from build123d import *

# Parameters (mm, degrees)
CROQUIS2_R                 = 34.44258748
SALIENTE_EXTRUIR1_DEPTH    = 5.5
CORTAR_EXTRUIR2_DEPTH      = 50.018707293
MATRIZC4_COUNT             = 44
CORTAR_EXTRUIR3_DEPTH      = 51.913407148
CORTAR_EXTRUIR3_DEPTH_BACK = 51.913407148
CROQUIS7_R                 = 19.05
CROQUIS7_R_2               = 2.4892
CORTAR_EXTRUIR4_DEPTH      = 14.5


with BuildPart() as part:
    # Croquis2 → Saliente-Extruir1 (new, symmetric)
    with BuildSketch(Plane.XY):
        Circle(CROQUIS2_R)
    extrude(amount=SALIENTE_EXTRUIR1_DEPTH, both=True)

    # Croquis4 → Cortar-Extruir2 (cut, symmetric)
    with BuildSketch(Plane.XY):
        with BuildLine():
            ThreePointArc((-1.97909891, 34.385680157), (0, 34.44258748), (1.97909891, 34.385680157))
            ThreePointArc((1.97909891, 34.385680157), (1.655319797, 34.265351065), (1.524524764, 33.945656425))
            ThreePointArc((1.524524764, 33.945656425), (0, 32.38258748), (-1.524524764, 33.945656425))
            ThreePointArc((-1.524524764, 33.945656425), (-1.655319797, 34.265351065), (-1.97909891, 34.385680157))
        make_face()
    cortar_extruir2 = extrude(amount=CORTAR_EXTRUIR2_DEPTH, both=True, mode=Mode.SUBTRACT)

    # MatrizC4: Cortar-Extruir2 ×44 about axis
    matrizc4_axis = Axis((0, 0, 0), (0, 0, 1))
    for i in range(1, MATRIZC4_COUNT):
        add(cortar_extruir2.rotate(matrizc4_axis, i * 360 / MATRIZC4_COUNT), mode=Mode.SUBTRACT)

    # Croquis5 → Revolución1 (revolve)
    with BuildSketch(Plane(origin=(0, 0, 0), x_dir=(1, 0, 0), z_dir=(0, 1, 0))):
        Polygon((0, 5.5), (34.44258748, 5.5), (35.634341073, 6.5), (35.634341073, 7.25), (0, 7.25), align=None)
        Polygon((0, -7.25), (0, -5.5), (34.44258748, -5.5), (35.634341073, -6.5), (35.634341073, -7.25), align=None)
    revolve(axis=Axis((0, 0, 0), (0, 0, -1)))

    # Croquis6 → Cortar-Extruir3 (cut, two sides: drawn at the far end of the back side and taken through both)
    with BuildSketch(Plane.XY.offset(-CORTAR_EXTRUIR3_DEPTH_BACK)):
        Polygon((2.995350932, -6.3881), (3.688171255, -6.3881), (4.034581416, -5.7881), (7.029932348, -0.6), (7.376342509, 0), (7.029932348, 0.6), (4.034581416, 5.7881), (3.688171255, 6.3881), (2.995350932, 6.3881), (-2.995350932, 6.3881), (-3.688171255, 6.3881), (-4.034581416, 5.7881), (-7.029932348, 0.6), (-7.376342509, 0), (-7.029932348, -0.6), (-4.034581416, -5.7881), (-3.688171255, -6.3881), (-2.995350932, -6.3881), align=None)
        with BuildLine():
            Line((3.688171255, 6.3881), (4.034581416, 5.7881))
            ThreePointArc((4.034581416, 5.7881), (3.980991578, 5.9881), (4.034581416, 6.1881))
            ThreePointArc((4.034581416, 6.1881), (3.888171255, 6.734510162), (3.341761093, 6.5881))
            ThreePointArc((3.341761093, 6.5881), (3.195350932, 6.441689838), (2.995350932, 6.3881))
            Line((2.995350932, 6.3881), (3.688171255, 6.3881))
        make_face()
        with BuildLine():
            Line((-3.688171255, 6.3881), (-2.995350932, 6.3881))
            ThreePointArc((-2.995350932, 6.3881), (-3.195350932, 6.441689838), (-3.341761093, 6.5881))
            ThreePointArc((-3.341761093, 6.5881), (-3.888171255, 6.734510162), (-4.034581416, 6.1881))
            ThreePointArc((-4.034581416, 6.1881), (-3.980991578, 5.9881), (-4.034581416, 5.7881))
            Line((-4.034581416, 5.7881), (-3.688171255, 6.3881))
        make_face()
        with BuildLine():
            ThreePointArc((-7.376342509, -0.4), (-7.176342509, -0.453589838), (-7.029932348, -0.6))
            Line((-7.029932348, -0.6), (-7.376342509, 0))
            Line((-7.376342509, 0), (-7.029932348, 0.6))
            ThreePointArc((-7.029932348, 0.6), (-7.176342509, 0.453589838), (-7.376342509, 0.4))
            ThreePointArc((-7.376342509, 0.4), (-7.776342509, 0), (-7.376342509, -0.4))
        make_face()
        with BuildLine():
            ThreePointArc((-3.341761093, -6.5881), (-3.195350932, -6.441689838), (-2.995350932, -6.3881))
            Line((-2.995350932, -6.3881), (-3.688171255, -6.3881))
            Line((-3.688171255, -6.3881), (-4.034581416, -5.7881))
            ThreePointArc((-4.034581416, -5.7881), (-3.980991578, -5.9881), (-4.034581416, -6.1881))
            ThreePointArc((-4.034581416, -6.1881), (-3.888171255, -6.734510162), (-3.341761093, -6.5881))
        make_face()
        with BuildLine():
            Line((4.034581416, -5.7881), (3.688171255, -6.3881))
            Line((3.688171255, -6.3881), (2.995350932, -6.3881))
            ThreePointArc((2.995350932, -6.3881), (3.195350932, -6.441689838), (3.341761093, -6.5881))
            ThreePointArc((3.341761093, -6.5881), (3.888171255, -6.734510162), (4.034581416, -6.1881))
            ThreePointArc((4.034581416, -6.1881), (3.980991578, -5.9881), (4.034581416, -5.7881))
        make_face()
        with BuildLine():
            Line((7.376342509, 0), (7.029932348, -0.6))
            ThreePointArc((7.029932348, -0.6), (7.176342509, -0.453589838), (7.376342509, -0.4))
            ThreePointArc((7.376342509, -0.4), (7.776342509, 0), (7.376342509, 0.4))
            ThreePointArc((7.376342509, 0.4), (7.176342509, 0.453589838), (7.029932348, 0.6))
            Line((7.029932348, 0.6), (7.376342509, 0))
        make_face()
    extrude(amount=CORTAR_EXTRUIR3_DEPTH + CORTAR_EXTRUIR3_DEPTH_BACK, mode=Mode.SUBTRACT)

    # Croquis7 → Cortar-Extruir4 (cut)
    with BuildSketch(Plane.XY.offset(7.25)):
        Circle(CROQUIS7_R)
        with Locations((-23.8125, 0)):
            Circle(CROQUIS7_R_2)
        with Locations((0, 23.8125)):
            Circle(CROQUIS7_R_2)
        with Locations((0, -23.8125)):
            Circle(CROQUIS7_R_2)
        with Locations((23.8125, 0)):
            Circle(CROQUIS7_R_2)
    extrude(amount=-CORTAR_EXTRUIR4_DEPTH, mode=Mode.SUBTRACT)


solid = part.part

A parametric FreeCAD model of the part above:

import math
import FreeCAD as App
import Part
import Sketcher
Q = App.Units.Quantity

doc = App.newDocument("Part")
body = doc.addObject("PartDesign::Body", "Body")

sketch1 = body.newObject("Sketcher::SketchObject", "Sketch")
sketch1.AttachmentSupport = (doc.getObject("XY_Plane"), [""])
sketch1.MapMode = "FlatFace"
sketch1.addGeometry(Part.Circle(App.Vector(0, 0, 0), App.Vector(0, 0, 1), 34), False)
sketch1.addConstraint([
    Sketcher.Constraint("Coincident", 0, 3, -1, 1),
    Sketcher.Constraint("Diameter", 0, Q("68.885175 mm")),
])
pad1 = body.newObject("PartDesign::Pad", "Pad")
pad1.Profile = sketch1
pad1.Length = 11
pad1.Midplane = True

sketch2 = body.newObject("Sketcher::SketchObject", "Sketch001")
sketch2.AttachmentSupport = (doc.getObject("XY_Plane"), [""])
sketch2.MapMode = "FlatFace"
sketch2.addGeometry([
    Part.ArcOfCircle(Part.Circle(App.Vector(0, 0, 0), App.Vector(0, 0, 1), 34.44), math.radians(86.71), math.radians(93.29)),
    Part.ArcOfCircle(Part.Circle(App.Vector(-1.95, 33.96, 0), App.Vector(0, 0, 1), 0.43), math.radians(-1), math.radians(93)),
    Part.ArcOfCircle(Part.Circle(App.Vector(0, 33.91, 0), App.Vector(0, 0, 1), 1.52), math.radians(179), math.radians(361)),
    Part.ArcOfCircle(Part.Circle(App.Vector(1.95, 33.96, 0), App.Vector(0, 0, 1), 0.43), math.radians(87), math.radians(181)),
], False)
sketch2.addConstraint([
    Sketcher.Constraint("Tangent", 0, 2, 1, 2),
    Sketcher.Constraint("Tangent", 1, 1, 2, 1),
    Sketcher.Constraint("Tangent", 2, 2, 3, 2),
    Sketcher.Constraint("Tangent", 3, 1, 0, 1),
    Sketcher.Constraint("Coincident", 0, 3, -1, 1),
    Sketcher.Constraint("Equal", 1, 3),
    Sketcher.Constraint("PointOnObject", 2, 3, -2),
    Sketcher.Constraint("Radius", 1, Q("0.43 mm")),
    Sketcher.Constraint("Radius", 2, Q("1.525 mm")),
    Sketcher.Constraint("Radius", 0, Q("34.442588 mm")),
    Sketcher.Constraint("DistanceX", -1, 1, 3, 1, Q("1.979099 mm")),
])
pocket1 = body.newObject("PartDesign::Pocket", "Pocket")
pocket1.Profile = sketch2
pocket1.Length = 100.037415
pocket1.Midplane = True
doc.recompute()

polarpattern = body.newObject("PartDesign::PolarPattern", "PolarPattern")
polarpattern.Originals = [pocket1]
polarpattern.Axis = (doc.getObject("Z_Axis"), [""])
polarpattern.Angle = 360
polarpattern.Occurrences = 44
body.Tip = polarpattern

sketch3 = body.newObject("Sketcher::SketchObject", "Sketch002")
sketch3.AttachmentSupport = (doc.getObject("XZ_Plane"), [""])
sketch3.MapMode = "FlatFace"
sketch3.addGeometry([
    Part.LineSegment(App.Vector(0, -5.5, 0), App.Vector(34.4, -5.5, 0)),
    Part.LineSegment(App.Vector(34.4, -5.5, 0), App.Vector(35.6, -6.5, 0)),
    Part.LineSegment(App.Vector(35.6, -6.5, 0), App.Vector(35.6, -7.2, 0)),
    Part.LineSegment(App.Vector(35.6, -7.2, 0), App.Vector(0, -7.2, 0)),
    Part.LineSegment(App.Vector(0, -7.2, 0), App.Vector(0, -5.5, 0)),
    Part.LineSegment(App.Vector(0, 5.5, 0), App.Vector(0, 7.2, 0)),
    Part.LineSegment(App.Vector(0, 7.2, 0), App.Vector(35.6, 7.2, 0)),
    Part.LineSegment(App.Vector(35.6, 7.2, 0), App.Vector(35.6, 6.5, 0)),
    Part.LineSegment(App.Vector(35.6, 6.5, 0), App.Vector(34.4, 5.5, 0)),
    Part.LineSegment(App.Vector(34.4, 5.5, 0), App.Vector(0, 5.5, 0)),
], False)
sketch3.addConstraint([
    Sketcher.Constraint("Coincident", 0, 2, 1, 1),
    Sketcher.Constraint("Coincident", 1, 2, 2, 1),
    Sketcher.Constraint("Coincident", 2, 2, 3, 1),
    Sketcher.Constraint("Coincident", 3, 2, 4, 1),
    Sketcher.Constraint("Coincident", 4, 2, 0, 1),
    Sketcher.Constraint("Coincident", 5, 2, 6, 1),
    Sketcher.Constraint("Coincident", 6, 2, 7, 1),
    Sketcher.Constraint("Coincident", 7, 2, 8, 1),
    Sketcher.Constraint("Coincident", 8, 2, 9, 1),
    Sketcher.Constraint("Coincident", 9, 2, 5, 1),
    Sketcher.Constraint("Horizontal", 0),
    Sketcher.Constraint("Vertical", 2),
    Sketcher.Constraint("Horizontal", 3),
    Sketcher.Constraint("Vertical", 4),
    Sketcher.Constraint("Vertical", 5),
    Sketcher.Constraint("Horizontal", 6),
    Sketcher.Constraint("Vertical", 7),
    Sketcher.Constraint("Horizontal", 9),
    Sketcher.Constraint("Symmetric", 3, 2, 5, 2, -1, 1),
    Sketcher.Constraint("Symmetric", 1, 2, 7, 2, -1),
    Sketcher.Constraint("Symmetric", 0, 2, 8, 2, -1),
    Sketcher.Constraint("PointOnObject", 3, 2, -2),
    Sketcher.Constraint("Angle", 1, Q("-40 deg")),
    Sketcher.Constraint("DistanceY", 1, 2, 0, 2, Q("1 mm")),
    Sketcher.Constraint("DistanceY", 0, 2, 7, 2, Q("12 mm")),
    Sketcher.Constraint("DistanceY", 2, 2, 2, 1, Q("0.75 mm")),
    Sketcher.Constraint("DistanceX", 3, 2, 3, 1, Q("35.634341 mm")),
])
revolution = body.newObject("PartDesign::Revolution", "Revolution")
revolution.Profile = sketch3
revolution.ReferenceAxis = (sketch3, ["V_Axis"])
revolution.Angle = 360

sketch4 = body.newObject("Sketcher::SketchObject", "Sketch003")
sketch4.AttachmentSupport = (doc.getObject("XY_Plane"), [""])
sketch4.MapMode = "FlatFace"
sketch4.addGeometry([
    Part.LineSegment(App.Vector(4.03, -5.79, 0), App.Vector(7.03, -0.6, 0)),
    Part.ArcOfCircle(Part.Circle(App.Vector(7.38, -0.8, 0), App.Vector(0, 0, 1), 0.4), math.radians(90), math.radians(150)),
    Part.ArcOfCircle(Part.Circle(App.Vector(7.38, 0, 0), App.Vector(0, 0, 1), 0.4), math.radians(-90), math.radians(90)),
    Part.ArcOfCircle(Part.Circle(App.Vector(7.38, 0.8, 0), App.Vector(0, 0, 1), 0.4), math.radians(-150), math.radians(-90)),
    Part.LineSegment(App.Vector(7.03, 0.6, 0), App.Vector(4.03, 5.79, 0)),
    Part.ArcOfCircle(Part.Circle(App.Vector(4.38, 5.99, 0), App.Vector(0, 0, 1), 0.4), math.radians(150), math.radians(210)),
    Part.ArcOfCircle(Part.Circle(App.Vector(3.69, 6.39, 0), App.Vector(0, 0, 1), 0.4), math.radians(-30), math.radians(150)),
    Part.ArcOfCircle(Part.Circle(App.Vector(3, 6.79, 0), App.Vector(0, 0, 1), 0.4), math.radians(-90), math.radians(-30)),
    Part.LineSegment(App.Vector(3, 6.39, 0), App.Vector(-3, 6.39, 0)),
    Part.ArcOfCircle(Part.Circle(App.Vector(-3, 6.79, 0), App.Vector(0, 0, 1), 0.4), math.radians(-150), math.radians(-90)),
    Part.ArcOfCircle(Part.Circle(App.Vector(-3.69, 6.39, 0), App.Vector(0, 0, 1), 0.4), math.radians(30), math.radians(210)),
    Part.ArcOfCircle(Part.Circle(App.Vector(-4.38, 5.99, 0), App.Vector(0, 0, 1), 0.4), math.radians(-30), math.radians(30)),
    Part.LineSegment(App.Vector(-4.03, 5.79, 0), App.Vector(-7.03, 0.6, 0)),
    Part.ArcOfCircle(Part.Circle(App.Vector(-7.38, 0.8, 0), App.Vector(0, 0, 1), 0.4), math.radians(-90), math.radians(-30)),
    Part.ArcOfCircle(Part.Circle(App.Vector(-7.38, 0, 0), App.Vector(0, 0, 1), 0.4), math.radians(90), math.radians(270)),
    Part.ArcOfCircle(Part.Circle(App.Vector(-7.38, -0.8, 0), App.Vector(0, 0, 1), 0.4), math.radians(30), math.radians(90)),
    Part.LineSegment(App.Vector(-7.03, -0.6, 0), App.Vector(-4.03, -5.79, 0)),
    Part.ArcOfCircle(Part.Circle(App.Vector(-4.38, -5.99, 0), App.Vector(0, 0, 1), 0.4), math.radians(-30), math.radians(30)),
    Part.ArcOfCircle(Part.Circle(App.Vector(-3.69, -6.39, 0), App.Vector(0, 0, 1), 0.4), math.radians(150), math.radians(330)),
    Part.ArcOfCircle(Part.Circle(App.Vector(-3, -6.79, 0), App.Vector(0, 0, 1), 0.4), math.radians(90), math.radians(150)),
    Part.LineSegment(App.Vector(-3, -6.39, 0), App.Vector(3, -6.39, 0)),
    Part.ArcOfCircle(Part.Circle(App.Vector(3, -6.79, 0), App.Vector(0, 0, 1), 0.4), math.radians(30), math.radians(90)),
    Part.ArcOfCircle(Part.Circle(App.Vector(3.69, -6.39, 0), App.Vector(0, 0, 1), 0.4), math.radians(-150), math.radians(30)),
    Part.ArcOfCircle(Part.Circle(App.Vector(4.38, -5.99, 0), App.Vector(0, 0, 1), 0.4), math.radians(150), math.radians(210)),
], False)
sketch4.addConstraint([
    Sketcher.Constraint("Tangent", 0, 2, 1, 2),
    Sketcher.Constraint("Tangent", 1, 1, 2, 1),
    Sketcher.Constraint("Tangent", 2, 2, 3, 2),
    Sketcher.Constraint("Tangent", 3, 1, 4, 1),
    Sketcher.Constraint("Tangent", 4, 2, 5, 2),
    Sketcher.Constraint("Tangent", 5, 1, 6, 1),
    Sketcher.Constraint("Tangent", 6, 2, 7, 2),
    Sketcher.Constraint("Tangent", 7, 1, 8, 1),
    Sketcher.Constraint("Tangent", 8, 2, 9, 2),
    Sketcher.Constraint("Tangent", 9, 1, 10, 1),
    Sketcher.Constraint("Tangent", 10, 2, 11, 2),
    Sketcher.Constraint("Tangent", 11, 1, 12, 1),
    Sketcher.Constraint("Tangent", 12, 2, 13, 2),
    Sketcher.Constraint("Tangent", 13, 1, 14, 1),
    Sketcher.Constraint("Tangent", 14, 2, 15, 2),
    Sketcher.Constraint("Tangent", 15, 1, 16, 1),
    Sketcher.Constraint("Tangent", 16, 2, 17, 2),
    Sketcher.Constraint("Tangent", 17, 1, 18, 1),
    Sketcher.Constraint("Tangent", 18, 2, 19, 2),
    Sketcher.Constraint("Tangent", 19, 1, 20, 1),
    Sketcher.Constraint("Tangent", 20, 2, 21, 2),
    Sketcher.Constraint("Tangent", 21, 1, 22, 1),
    Sketcher.Constraint("Tangent", 22, 2, 23, 2),
    Sketcher.Constraint("Tangent", 23, 1, 0, 1),
    Sketcher.Constraint("Horizontal", 8),
    Sketcher.Constraint("Horizontal", 20),
    Sketcher.Constraint("Equal", 1, 2),
    Sketcher.Constraint("Equal", 2, 3),
    Sketcher.Constraint("Equal", 3, 5),
    Sketcher.Constraint("Equal", 5, 6),
    Sketcher.Constraint("Equal", 6, 7),
    Sketcher.Constraint("Equal", 7, 9),
    Sketcher.Constraint("Equal", 9, 10),
    Sketcher.Constraint("Equal", 10, 11),
    Sketcher.Constraint("Equal", 11, 13),
    Sketcher.Constraint("Equal", 13, 14),
    Sketcher.Constraint("Equal", 14, 15),
    Sketcher.Constraint("Equal", 15, 17),
    Sketcher.Constraint("Equal", 17, 18),
    Sketcher.Constraint("Equal", 18, 19),
    Sketcher.Constraint("Equal", 19, 21),
    Sketcher.Constraint("Equal", 21, 22),
    Sketcher.Constraint("Equal", 22, 23),
    Sketcher.Constraint("Symmetric", 1, 3, 13, 3, -1, 1),
    Sketcher.Constraint("Symmetric", 5, 3, 17, 3, -1, 1),
    Sketcher.Constraint("Symmetric", 9, 3, 21, 3, -1, 1),
    Sketcher.Constraint("Symmetric", 6, 3, 10, 3, -2),
    Sketcher.Constraint("Symmetric", 3, 3, 13, 3, -2),
    Sketcher.Constraint("Symmetric", 0, 2, 15, 1, -2),
    Sketcher.Constraint("Parallel", 0, 12),
    Sketcher.Constraint("Horizontal", 18, 3, 22, 3),
    Sketcher.Constraint("Horizontal", 10, 3, 7, 1),
    Sketcher.Constraint("Horizontal", 22, 3, 19, 1),
    Sketcher.Constraint("Vertical", 1, 3, 2, 3),
    Sketcher.Constraint("Vertical", 13, 3, 14, 3),
    Sketcher.Constraint("Vertical", 4, 2, 5, 1),
    Sketcher.Constraint("Radius", 1, Q("0.4 mm")),
    Sketcher.Constraint("Angle", 0, Q("60 deg")),
    Sketcher.Constraint("DistanceX", 8, 2, 8, 1, Q("5.990702 mm")),
    Sketcher.Constraint("Distance", 0, Q("5.990702 mm")),
])
pocket2 = body.newObject("PartDesign::Pocket", "Pocket001")
pocket2.Profile = sketch4
pocket2.Type = "ThroughAll"
pocket2.Midplane = True

sketch5 = body.newObject("Sketcher::SketchObject", "Sketch004")
sketch5.AttachmentSupport = (doc.getObject("XY_Plane"), [""])
sketch5.MapMode = "FlatFace"
sketch5.AttachmentOffset = App.Placement(App.Vector(0, 0, 7.25), App.Rotation())
sketch5.addGeometry([
    Part.Circle(App.Vector(0, 0, 0), App.Vector(0, 0, 1), 19.1),
    Part.Circle(App.Vector(-23.8, 0, 0), App.Vector(0, 0, 1), 2.5),
    Part.Circle(App.Vector(0, 23.8, 0), App.Vector(0, 0, 1), 2.5),
    Part.Circle(App.Vector(0, -23.8, 0), App.Vector(0, 0, 1), 2.5),
    Part.Circle(App.Vector(23.8, 0, 0), App.Vector(0, 0, 1), 2.5),
], False)
sketch5.addConstraint([
    Sketcher.Constraint("Coincident", 0, 3, -1, 1),
    Sketcher.Constraint("Equal", 1, 2),
    Sketcher.Constraint("Equal", 2, 3),
    Sketcher.Constraint("Equal", 3, 4),
    Sketcher.Constraint("Symmetric", 2, 3, 3, 3, -1, 1),
    Sketcher.Constraint("Symmetric", 1, 3, 4, 3, -1, 1),
    Sketcher.Constraint("PointOnObject", 1, 3, -1),
    Sketcher.Constraint("PointOnObject", 2, 3, -2),
    Sketcher.Constraint("Diameter", 0, Q("38.1 mm")),
    Sketcher.Constraint("Diameter", 1, Q("4.9784 mm")),
    Sketcher.Constraint("DistanceY", 3, 3, 2, 3, Q("47.625 mm")),
    Sketcher.Constraint("DistanceX", 1, 3, 4, 3, Q("47.625 mm")),
])
pocket3 = body.newObject("PartDesign::Pocket", "Pocket002")
pocket3.Profile = sketch5
pocket3.Length = 14.5

doc.recompute()
